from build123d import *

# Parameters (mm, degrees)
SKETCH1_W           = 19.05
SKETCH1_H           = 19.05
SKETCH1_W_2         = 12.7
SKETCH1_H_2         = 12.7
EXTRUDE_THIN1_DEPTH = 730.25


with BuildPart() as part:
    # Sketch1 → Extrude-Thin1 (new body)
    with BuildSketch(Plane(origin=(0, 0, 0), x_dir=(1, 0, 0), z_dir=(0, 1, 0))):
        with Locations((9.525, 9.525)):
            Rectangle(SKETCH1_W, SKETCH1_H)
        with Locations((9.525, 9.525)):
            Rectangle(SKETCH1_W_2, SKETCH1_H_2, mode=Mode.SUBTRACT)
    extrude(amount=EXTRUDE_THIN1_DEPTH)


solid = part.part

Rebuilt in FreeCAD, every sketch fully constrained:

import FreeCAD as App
import Part
import Sketcher
from FreeCAD import Vector
Q = App.Units.Quantity


def add_polygon(sketch, points):
    """Adds a closed chain of lines whose ends are joined by coincident constraints."""
    first, n = sketch.GeometryCount, len(points)
    for a, b in zip(points, points[1:] + points[:1]):
        sketch.addGeometry(Part.LineSegment(App.Vector(*a, 0), App.Vector(*b, 0)), False)
    for i in range(n):
        sketch.addConstraint(Sketcher.Constraint("Coincident", first + i, 2, first + (i + 1) % n, 1))

doc = App.newDocument("Part")
body = doc.addObject("PartDesign::Body", "Body")

sketch1 = body.newObject("Sketcher::SketchObject", "Sketch")
sketch1.AttachmentSupport = (doc.getObject("XZ_Plane"), [""])
sketch1.MapMode = "FlatFace"
add_polygon(sketch1, [(0, -19.05), (0, 0), (19.05, 0), (19.05, -19.05)])
add_polygon(sketch1, [(15.875, -3.175), (3.175, -3.175), (3.175, -15.875), (15.875, -15.875)])
sketch1.addConstraint(Sketcher.Constraint("Vertical", 0))
sketch1.addConstraint(Sketcher.Constraint("Horizontal", 1))
sketch1.addConstraint(Sketcher.Constraint("Vertical", 2))
sketch1.addConstraint(Sketcher.Constraint("Horizontal", 3))
sketch1.addConstraint(Sketcher.Constraint("Horizontal", 4))
sketch1.addConstraint(Sketcher.Constraint("Vertical", 5))
sketch1.addConstraint(Sketcher.Constraint("Horizontal", 6))
sketch1.addConstraint(Sketcher.Constraint("Vertical", 7))
sketch1.addConstraint(Sketcher.Constraint("Coincident", 0, 2, -1, 1))
sketch1.addConstraint(Sketcher.Constraint("Equal", 3, 0))
sketch1.addConstraint(Sketcher.Constraint("Equal", 6, 5))
sketch1.addConstraint(Sketcher.Constraint("DistanceX", 4, 2, 4, 1, Q("0.5 in")))
sketch1.addConstraint(Sketcher.Constraint("DistanceX", 1, 1, 1, 2, Q("0.75 in")))
sketch1.addConstraint(Sketcher.Constraint("DistanceX", -1, 1, 4, 2, Q("0.125 in")))
sketch1.addConstraint(Sketcher.Constraint("DistanceY", 4, 2, -1, 1, Q("0.125 in")))
pad1 = body.newObject("PartDesign::Pad", "Pad")
pad1.Profile = sketch1
pad1.Length = Q("28.75 in")
pad1.Reversed = True

doc.recompute()
